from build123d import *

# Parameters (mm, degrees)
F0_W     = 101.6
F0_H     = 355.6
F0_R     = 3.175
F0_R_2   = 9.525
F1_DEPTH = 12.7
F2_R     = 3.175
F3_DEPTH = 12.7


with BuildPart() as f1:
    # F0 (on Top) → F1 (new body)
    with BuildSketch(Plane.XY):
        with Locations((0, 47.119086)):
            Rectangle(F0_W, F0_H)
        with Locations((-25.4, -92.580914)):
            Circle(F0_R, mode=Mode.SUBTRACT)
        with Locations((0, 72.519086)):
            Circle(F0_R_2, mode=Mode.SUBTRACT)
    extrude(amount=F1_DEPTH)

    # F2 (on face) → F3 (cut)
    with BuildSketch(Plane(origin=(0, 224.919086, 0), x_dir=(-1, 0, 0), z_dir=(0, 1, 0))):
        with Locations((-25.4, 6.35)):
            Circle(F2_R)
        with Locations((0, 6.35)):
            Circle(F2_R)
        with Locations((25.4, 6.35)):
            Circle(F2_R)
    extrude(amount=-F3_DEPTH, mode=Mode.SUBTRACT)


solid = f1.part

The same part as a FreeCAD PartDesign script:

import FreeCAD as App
import Part
import Sketcher
Q = App.Units.Quantity


def add_polygon(sketch, points):
    """Adds a closed chain of lines whose ends are joined by coincident constraints."""
    first, n = sketch.GeometryCount, len(points)
    for a, b in zip(points, points[1:] + points[:1]):
        sketch.addGeometry(Part.LineSegment(App.Vector(*a, 0), App.Vector(*b, 0)), False)
    for i in range(n):
        sketch.addConstraint(Sketcher.Constraint("Coincident", first + i, 2, first + (i + 1) % n, 1))

doc = App.newDocument("Part")
params = doc.addObject("Spreadsheet::Sheet", "Params")
for row, (alias, value) in enumerate([
    ("sketch1_diameter", "0.25 in"),
    ("sketch1_diameter2", "0.75 in"),
    ("sketch1_width", "4 in"),
    ("sketch1_height", "14 in"),
    ("pad1_length", "0.5 in"),
    ("sketch2_diameter", "0.25 in"),
    ("pocket1_length", "0.5 in"),
], start=1):
    params.set(f"A{row}", alias)
    params.set(f"B{row}", "=" + value)
    params.setAlias(f"B{row}", alias)

body = doc.addObject("PartDesign::Body", "Body")

sketch1 = body.newObject("Sketcher::SketchObject", "Sketch")
sketch1.AttachmentSupport = (doc.getObject("XY_Plane"), [""])
sketch1.MapMode = "FlatFace"
add_polygon(sketch1, [(-50.8, 224.9), (-50.8, -130.7), (50.8, -130.7), (50.8, 224.9)])
sketch1.addGeometry(Part.Circle(App.Vector(-25.4, -92.6, 0), App.Vector(0, 0, 1), 3.2), False)
sketch1.addGeometry(Part.Circle(App.Vector(0, 72.5, 0), App.Vector(0, 0, 1), 9.5), False)
sketch1.addConstraint(Sketcher.Constraint("Vertical", 0))
sketch1.addConstraint(Sketcher.Constraint("Horizontal", 1))
sketch1.addConstraint(Sketcher.Constraint("Vertical", 2))
sketch1.addConstraint(Sketcher.Constraint("Horizontal", 3))
sketch1.addConstraint(Sketcher.Constraint("PointOnObject", 5, 3, -2))
sketch1.addConstraint(Sketcher.Constraint("Diameter", 4, Q("0.25 in")))
sketch1.addConstraint(Sketcher.Constraint("Diameter", 5, Q("0.75 in")))
sketch1.addConstraint(Sketcher.Constraint("DistanceX", 1, 1, 1, 2, Q("4 in")))
sketch1.addConstraint(Sketcher.Constraint("DistanceY", 0, 2, 0, 1, Q("14 in")))
sketch1.addConstraint(Sketcher.Constraint("DistanceX", 4, 3, -1, 1, Q("1 in")))
sketch1.addConstraint(Sketcher.Constraint("DistanceX", 0, 2, -1, 1, Q("2 in")))
sketch1.addConstraint(Sketcher.Constraint("DistanceY", 0, 2, 5, 3, Q("8 in")))
sketch1.addConstraint(Sketcher.Constraint("DistanceY", 4, 3, 5, 3, Q("6.5 in")))
sketch1.addConstraint(Sketcher.Constraint("DistanceY", 4, 3, -1, 1, Q("92.580914 mm")))
sketch1.setExpression("Constraints[9]", "Params.sketch1_diameter")
sketch1.setExpression("Constraints[10]", "Params.sketch1_diameter2")
sketch1.setExpression("Constraints[11]", "Params.sketch1_width")
sketch1.setExpression("Constraints[12]", "Params.sketch1_height")
pad1 = body.newObject("PartDesign::Pad", "Pad")
pad1.Profile = sketch1
pad1.setExpression("Length", "Params.pad1_length")

sketch2 = body.newObject("Sketcher::SketchObject", "Sketch001")
sketch2.AttachmentSupport = (doc.getObject("XZ_Plane"), [""])
sketch2.MapMode = "FlatFace"
sketch2.AttachmentOffset = App.Placement(App.Vector(0, 0, -224.919086), App.Rotation())
sketch2.addGeometry(Part.Circle(App.Vector(25.4, 6.3, 0), App.Vector(0, 0, 1), 3.2), False)
sketch2.addGeometry(Part.Circle(App.Vector(0, 6.3, 0), App.Vector(0, 0, 1), 3.2), False)
sketch2.addGeometry(Part.Circle(App.Vector(-25.4, 6.3, 0), App.Vector(0, 0, 1), 3.2), False)
sketch2.addConstraint(Sketcher.Constraint("Equal", 0, 1))
sketch2.addConstraint(Sketcher.Constraint("Equal", 1, 2))
sketch2.addConstraint(Sketcher.Constraint("Symmetric", 0, 3, 2, 3, -2))
sketch2.addConstraint(Sketcher.Constraint("PointOnObject", 1, 3, -2))
sketch2.addConstraint(Sketcher.Constraint("Horizontal", 0, 3, 1, 3))
sketch2.addConstraint(Sketcher.Constraint("Diameter", 0, Q("0.25 in")))
sketch2.addConstraint(Sketcher.Constraint("DistanceX", -1, 1, 0, 3, Q("1 in")))
sketch2.addConstraint(Sketcher.Constraint("DistanceY", -1, 1, 0, 3, Q("0.25 in")))
sketch2.setExpression("Constraints[5]", "Params.sketch2_diameter")
pocket1 = body.newObject("PartDesign::Pocket", "Pocket")
pocket1.Profile = sketch2
pocket1.setExpression("Length", "Params.pocket1_length")
pocket1.Reversed = True

doc.recompute()
